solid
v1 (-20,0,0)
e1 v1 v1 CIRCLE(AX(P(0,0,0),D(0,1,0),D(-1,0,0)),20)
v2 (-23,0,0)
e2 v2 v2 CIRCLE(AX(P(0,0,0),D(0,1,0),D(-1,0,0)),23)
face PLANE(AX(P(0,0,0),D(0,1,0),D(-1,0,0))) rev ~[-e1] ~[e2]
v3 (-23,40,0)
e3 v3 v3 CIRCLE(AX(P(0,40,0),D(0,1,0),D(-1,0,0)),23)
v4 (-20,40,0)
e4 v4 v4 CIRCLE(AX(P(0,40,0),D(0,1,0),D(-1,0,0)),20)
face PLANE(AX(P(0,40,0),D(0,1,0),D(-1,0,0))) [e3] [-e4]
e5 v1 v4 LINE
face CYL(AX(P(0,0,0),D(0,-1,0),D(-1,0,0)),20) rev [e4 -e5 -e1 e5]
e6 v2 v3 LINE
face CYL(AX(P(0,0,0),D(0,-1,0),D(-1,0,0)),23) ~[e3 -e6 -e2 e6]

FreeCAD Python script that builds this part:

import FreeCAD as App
import Part
import Sketcher

doc = App.newDocument("Part")
body = doc.addObject("PartDesign::Body", "Body")

sketch1 = body.newObject("Sketcher::SketchObject", "Sketch")
sketch1.AttachmentSupport = (doc.getObject("XZ_Plane"), [""])
sketch1.MapMode = "FlatFace"
sketch1.addGeometry([
    Part.Circle(App.Vector(0, 0, 0), App.Vector(0, 0, 1), 23),
    Part.Circle(App.Vector(0, 0, 0), App.Vector(0, 0, 1), 20),
], False)
sketch1.addConstraint([
    Sketcher.Constraint("Coincident", 0, 3, -1, 1),
    Sketcher.Constraint("Coincident", 1, 3, -1, 1),
    Sketcher.Constraint("Diameter", 0, 46.0),
    Sketcher.Constraint("Diameter", 1, 40.0),
])
pad1 = body.newObject("PartDesign::Pad", "Pad")
pad1.Profile = sketch1
pad1.Length = 40
pad1.Reversed = True

doc.recompute()
